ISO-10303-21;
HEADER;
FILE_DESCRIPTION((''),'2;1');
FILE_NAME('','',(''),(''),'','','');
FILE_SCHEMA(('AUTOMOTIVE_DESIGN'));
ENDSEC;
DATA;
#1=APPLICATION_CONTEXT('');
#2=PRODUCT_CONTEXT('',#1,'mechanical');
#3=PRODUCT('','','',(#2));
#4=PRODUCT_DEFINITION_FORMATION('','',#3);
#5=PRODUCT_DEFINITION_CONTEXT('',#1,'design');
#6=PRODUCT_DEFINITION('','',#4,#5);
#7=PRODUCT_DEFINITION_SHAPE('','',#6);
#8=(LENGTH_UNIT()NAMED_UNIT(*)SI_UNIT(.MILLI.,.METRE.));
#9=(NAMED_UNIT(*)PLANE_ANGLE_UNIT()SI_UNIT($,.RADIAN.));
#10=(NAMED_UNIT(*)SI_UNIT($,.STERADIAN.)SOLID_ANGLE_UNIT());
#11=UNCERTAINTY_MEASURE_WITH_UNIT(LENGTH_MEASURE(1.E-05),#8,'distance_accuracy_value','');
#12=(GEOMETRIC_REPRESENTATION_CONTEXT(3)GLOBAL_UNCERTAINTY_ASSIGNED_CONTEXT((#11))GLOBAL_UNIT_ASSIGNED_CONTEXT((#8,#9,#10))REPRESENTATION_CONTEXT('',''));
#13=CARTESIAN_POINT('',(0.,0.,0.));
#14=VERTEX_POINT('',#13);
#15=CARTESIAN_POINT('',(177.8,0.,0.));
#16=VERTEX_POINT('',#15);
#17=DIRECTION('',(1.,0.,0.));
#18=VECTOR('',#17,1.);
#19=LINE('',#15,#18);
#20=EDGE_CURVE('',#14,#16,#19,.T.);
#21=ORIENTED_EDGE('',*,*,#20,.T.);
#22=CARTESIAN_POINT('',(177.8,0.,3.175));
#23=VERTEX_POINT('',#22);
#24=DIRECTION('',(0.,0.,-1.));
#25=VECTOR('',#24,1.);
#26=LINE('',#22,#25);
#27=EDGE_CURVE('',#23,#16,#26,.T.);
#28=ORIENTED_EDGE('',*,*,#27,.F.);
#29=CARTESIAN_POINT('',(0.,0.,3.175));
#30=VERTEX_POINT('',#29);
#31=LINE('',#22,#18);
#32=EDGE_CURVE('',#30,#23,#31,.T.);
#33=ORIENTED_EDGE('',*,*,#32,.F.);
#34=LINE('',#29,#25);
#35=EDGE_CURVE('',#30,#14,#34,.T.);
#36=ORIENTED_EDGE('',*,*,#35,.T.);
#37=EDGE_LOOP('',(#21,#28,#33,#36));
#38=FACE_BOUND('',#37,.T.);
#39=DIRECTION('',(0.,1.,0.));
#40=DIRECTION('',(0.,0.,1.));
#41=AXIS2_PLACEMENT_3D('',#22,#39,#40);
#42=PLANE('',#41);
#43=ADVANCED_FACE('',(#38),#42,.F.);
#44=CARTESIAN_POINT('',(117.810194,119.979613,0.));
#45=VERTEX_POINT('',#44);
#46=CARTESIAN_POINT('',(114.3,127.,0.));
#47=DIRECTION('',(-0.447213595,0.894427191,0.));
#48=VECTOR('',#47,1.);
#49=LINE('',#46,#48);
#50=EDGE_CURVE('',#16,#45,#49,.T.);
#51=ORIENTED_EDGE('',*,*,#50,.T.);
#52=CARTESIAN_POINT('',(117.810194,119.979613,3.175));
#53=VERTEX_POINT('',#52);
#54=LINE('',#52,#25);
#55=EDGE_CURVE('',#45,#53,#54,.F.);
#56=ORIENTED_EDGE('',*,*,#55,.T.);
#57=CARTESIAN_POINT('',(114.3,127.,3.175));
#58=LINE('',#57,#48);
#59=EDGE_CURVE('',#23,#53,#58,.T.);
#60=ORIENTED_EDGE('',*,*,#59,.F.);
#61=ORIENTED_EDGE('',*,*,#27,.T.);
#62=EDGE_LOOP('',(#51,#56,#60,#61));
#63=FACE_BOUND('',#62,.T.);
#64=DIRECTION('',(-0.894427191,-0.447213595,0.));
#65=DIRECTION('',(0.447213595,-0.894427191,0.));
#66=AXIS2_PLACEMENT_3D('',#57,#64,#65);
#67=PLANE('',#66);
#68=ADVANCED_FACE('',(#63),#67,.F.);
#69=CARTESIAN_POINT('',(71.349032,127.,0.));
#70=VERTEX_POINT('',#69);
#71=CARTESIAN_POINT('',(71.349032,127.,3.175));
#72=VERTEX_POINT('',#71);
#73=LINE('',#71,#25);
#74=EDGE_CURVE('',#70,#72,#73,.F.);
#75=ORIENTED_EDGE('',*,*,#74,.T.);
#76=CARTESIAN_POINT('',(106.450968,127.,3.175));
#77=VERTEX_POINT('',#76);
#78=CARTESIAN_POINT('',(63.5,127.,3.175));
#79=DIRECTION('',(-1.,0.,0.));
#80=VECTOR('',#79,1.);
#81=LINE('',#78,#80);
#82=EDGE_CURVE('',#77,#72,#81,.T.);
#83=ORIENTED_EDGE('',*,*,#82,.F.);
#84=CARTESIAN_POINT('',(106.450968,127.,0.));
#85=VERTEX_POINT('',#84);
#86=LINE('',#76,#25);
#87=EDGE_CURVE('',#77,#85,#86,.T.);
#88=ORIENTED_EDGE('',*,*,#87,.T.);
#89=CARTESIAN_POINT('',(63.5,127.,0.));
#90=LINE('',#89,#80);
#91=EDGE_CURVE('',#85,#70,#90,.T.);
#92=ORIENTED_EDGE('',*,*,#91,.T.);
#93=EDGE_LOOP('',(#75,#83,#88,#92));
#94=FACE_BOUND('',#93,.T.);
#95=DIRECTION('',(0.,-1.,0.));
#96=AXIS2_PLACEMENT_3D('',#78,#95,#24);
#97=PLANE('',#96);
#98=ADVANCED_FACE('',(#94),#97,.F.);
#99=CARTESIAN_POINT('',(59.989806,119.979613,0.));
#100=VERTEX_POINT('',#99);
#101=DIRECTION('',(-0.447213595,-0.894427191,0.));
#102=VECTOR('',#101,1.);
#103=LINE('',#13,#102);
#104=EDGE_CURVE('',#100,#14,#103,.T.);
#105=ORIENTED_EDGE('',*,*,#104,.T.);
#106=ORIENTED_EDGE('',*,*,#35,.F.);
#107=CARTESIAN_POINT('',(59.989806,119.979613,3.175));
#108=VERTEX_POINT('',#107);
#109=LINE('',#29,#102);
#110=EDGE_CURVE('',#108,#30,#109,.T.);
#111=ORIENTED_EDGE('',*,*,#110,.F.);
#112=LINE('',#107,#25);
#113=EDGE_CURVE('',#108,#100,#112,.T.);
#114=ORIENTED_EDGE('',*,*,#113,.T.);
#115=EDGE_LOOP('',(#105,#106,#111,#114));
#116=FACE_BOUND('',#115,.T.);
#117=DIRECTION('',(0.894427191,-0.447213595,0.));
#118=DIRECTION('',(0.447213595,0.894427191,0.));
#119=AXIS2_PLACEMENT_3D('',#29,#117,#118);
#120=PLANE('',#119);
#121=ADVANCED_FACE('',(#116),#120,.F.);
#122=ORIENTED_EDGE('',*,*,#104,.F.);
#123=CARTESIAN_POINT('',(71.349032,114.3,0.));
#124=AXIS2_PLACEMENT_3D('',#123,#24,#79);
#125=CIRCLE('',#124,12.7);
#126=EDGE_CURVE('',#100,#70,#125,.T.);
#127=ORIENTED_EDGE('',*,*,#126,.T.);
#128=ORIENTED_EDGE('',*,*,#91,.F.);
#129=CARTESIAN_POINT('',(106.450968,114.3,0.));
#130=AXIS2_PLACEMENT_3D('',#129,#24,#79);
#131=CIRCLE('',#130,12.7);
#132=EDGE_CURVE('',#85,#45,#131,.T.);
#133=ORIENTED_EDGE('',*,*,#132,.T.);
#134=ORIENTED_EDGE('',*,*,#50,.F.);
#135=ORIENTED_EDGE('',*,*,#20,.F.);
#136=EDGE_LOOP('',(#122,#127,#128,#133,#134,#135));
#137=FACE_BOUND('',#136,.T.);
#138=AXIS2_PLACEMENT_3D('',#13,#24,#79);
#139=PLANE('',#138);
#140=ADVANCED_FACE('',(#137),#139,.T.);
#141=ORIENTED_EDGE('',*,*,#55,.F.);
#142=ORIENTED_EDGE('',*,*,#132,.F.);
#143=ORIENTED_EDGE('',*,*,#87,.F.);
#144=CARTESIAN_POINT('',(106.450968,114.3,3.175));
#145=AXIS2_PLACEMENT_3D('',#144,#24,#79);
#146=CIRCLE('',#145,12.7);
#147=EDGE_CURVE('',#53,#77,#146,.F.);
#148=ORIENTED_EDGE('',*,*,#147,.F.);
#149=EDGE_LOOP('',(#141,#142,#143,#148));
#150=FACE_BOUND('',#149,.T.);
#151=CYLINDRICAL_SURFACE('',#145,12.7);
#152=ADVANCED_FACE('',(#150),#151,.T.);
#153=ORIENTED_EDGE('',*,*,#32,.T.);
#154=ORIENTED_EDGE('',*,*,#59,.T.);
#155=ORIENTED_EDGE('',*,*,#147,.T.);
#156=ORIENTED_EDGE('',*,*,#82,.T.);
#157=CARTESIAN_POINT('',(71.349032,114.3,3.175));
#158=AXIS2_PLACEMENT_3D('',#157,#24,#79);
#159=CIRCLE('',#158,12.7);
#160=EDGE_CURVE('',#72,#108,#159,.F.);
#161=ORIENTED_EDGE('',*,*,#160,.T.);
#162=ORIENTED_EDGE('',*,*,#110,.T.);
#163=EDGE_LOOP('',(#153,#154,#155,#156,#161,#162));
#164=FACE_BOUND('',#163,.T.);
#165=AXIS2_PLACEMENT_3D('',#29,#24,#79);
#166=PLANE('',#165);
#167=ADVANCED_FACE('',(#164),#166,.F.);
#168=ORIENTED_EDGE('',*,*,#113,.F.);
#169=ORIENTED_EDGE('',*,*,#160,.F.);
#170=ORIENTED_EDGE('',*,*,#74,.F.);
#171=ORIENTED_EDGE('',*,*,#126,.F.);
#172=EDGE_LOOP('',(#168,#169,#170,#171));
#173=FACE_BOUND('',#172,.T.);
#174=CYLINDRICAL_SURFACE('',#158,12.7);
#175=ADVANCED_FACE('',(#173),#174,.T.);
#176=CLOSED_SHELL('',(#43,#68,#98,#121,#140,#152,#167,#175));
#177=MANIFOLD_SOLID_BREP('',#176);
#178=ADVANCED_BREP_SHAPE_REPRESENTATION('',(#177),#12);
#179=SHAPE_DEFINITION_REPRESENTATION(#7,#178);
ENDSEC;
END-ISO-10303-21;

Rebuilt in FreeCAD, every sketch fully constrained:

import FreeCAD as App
import Part
import Sketcher

V = App.Vector
Q = App.Units.Quantity


def edges_at(feature, points):
    """Names of the edges that pass closest to the given points."""
    edges = feature.Shape.Edges
    near = lambda p: min(range(len(edges)), key=lambda i: edges[i].distToShape(Part.Vertex(*p))[0])
    return sorted({f"Edge{near(p) + 1}" for p in points})


def add_polygon(sketch, points):
    """Adds a closed chain of lines whose ends are joined by coincident constraints."""
    first, n = sketch.GeometryCount, len(points)
    for a, b in zip(points, points[1:] + points[:1]):
        sketch.addGeometry(Part.LineSegment(App.Vector(*a, 0), App.Vector(*b, 0)), False)
    for i in range(n):
        sketch.addConstraint(Sketcher.Constraint("Coincident", first + i, 2, first + (i + 1) % n, 1))

doc = App.newDocument("Part")
params = doc.addObject("Spreadsheet::Sheet", "Params")
for row, (alias, value) in enumerate([
    ("sketch1_width", "7 in"),
    ("sketch1_width2", "2 in"),
    ("pad1_length", "0.125 in"),
    ("fillet_radius", "0.5 in"),
], start=1):
    params.set(f"A{row}", alias)
    params.set(f"B{row}", "=" + value)
    params.setAlias(f"B{row}", alias)

body = doc.addObject("PartDesign::Body", "Body")

sketch1 = body.newObject("Sketcher::SketchObject", "Sketch")
sketch1.AttachmentSupport = (doc.getObject("XY_Plane"), [""])
sketch1.MapMode = "FlatFace"
add_polygon(sketch1, [(63.5, 127), (0, 0), (177.8, 0), (114.3, 127)])
sketch1.addConstraint([
    Sketcher.Constraint("Horizontal", 1),
    Sketcher.Constraint("Horizontal", 3),
    Sketcher.Constraint("Coincident", 0, 2, -1, 1),
    Sketcher.Constraint("Equal", 0, 2),
    Sketcher.Constraint("DistanceX", 1, 1, 1, 2, Q("7 in")),
    Sketcher.Constraint("DistanceX", 3, 2, 3, 1, Q("2 in")),
    Sketcher.Constraint("DistanceY", -1, 1, 2, 2, Q("5 in")),
])
sketch1.setExpression("Constraints[8]", "Params.sketch1_width")
sketch1.setExpression("Constraints[9]", "Params.sketch1_width2")
pad1 = body.newObject("PartDesign::Pad", "Pad")
pad1.Profile = sketch1
pad1.setExpression("Length", "Params.pad1_length")
doc.recompute()

fillet = body.newObject("PartDesign::Fillet", "Fillet")
fillet.Base = (pad1, edges_at(pad1, [(63.5, 127, 1.587), (114.3, 127, 1.587)]))
fillet.setExpression("Radius", "Params.fillet_radius")

doc.recompute()
